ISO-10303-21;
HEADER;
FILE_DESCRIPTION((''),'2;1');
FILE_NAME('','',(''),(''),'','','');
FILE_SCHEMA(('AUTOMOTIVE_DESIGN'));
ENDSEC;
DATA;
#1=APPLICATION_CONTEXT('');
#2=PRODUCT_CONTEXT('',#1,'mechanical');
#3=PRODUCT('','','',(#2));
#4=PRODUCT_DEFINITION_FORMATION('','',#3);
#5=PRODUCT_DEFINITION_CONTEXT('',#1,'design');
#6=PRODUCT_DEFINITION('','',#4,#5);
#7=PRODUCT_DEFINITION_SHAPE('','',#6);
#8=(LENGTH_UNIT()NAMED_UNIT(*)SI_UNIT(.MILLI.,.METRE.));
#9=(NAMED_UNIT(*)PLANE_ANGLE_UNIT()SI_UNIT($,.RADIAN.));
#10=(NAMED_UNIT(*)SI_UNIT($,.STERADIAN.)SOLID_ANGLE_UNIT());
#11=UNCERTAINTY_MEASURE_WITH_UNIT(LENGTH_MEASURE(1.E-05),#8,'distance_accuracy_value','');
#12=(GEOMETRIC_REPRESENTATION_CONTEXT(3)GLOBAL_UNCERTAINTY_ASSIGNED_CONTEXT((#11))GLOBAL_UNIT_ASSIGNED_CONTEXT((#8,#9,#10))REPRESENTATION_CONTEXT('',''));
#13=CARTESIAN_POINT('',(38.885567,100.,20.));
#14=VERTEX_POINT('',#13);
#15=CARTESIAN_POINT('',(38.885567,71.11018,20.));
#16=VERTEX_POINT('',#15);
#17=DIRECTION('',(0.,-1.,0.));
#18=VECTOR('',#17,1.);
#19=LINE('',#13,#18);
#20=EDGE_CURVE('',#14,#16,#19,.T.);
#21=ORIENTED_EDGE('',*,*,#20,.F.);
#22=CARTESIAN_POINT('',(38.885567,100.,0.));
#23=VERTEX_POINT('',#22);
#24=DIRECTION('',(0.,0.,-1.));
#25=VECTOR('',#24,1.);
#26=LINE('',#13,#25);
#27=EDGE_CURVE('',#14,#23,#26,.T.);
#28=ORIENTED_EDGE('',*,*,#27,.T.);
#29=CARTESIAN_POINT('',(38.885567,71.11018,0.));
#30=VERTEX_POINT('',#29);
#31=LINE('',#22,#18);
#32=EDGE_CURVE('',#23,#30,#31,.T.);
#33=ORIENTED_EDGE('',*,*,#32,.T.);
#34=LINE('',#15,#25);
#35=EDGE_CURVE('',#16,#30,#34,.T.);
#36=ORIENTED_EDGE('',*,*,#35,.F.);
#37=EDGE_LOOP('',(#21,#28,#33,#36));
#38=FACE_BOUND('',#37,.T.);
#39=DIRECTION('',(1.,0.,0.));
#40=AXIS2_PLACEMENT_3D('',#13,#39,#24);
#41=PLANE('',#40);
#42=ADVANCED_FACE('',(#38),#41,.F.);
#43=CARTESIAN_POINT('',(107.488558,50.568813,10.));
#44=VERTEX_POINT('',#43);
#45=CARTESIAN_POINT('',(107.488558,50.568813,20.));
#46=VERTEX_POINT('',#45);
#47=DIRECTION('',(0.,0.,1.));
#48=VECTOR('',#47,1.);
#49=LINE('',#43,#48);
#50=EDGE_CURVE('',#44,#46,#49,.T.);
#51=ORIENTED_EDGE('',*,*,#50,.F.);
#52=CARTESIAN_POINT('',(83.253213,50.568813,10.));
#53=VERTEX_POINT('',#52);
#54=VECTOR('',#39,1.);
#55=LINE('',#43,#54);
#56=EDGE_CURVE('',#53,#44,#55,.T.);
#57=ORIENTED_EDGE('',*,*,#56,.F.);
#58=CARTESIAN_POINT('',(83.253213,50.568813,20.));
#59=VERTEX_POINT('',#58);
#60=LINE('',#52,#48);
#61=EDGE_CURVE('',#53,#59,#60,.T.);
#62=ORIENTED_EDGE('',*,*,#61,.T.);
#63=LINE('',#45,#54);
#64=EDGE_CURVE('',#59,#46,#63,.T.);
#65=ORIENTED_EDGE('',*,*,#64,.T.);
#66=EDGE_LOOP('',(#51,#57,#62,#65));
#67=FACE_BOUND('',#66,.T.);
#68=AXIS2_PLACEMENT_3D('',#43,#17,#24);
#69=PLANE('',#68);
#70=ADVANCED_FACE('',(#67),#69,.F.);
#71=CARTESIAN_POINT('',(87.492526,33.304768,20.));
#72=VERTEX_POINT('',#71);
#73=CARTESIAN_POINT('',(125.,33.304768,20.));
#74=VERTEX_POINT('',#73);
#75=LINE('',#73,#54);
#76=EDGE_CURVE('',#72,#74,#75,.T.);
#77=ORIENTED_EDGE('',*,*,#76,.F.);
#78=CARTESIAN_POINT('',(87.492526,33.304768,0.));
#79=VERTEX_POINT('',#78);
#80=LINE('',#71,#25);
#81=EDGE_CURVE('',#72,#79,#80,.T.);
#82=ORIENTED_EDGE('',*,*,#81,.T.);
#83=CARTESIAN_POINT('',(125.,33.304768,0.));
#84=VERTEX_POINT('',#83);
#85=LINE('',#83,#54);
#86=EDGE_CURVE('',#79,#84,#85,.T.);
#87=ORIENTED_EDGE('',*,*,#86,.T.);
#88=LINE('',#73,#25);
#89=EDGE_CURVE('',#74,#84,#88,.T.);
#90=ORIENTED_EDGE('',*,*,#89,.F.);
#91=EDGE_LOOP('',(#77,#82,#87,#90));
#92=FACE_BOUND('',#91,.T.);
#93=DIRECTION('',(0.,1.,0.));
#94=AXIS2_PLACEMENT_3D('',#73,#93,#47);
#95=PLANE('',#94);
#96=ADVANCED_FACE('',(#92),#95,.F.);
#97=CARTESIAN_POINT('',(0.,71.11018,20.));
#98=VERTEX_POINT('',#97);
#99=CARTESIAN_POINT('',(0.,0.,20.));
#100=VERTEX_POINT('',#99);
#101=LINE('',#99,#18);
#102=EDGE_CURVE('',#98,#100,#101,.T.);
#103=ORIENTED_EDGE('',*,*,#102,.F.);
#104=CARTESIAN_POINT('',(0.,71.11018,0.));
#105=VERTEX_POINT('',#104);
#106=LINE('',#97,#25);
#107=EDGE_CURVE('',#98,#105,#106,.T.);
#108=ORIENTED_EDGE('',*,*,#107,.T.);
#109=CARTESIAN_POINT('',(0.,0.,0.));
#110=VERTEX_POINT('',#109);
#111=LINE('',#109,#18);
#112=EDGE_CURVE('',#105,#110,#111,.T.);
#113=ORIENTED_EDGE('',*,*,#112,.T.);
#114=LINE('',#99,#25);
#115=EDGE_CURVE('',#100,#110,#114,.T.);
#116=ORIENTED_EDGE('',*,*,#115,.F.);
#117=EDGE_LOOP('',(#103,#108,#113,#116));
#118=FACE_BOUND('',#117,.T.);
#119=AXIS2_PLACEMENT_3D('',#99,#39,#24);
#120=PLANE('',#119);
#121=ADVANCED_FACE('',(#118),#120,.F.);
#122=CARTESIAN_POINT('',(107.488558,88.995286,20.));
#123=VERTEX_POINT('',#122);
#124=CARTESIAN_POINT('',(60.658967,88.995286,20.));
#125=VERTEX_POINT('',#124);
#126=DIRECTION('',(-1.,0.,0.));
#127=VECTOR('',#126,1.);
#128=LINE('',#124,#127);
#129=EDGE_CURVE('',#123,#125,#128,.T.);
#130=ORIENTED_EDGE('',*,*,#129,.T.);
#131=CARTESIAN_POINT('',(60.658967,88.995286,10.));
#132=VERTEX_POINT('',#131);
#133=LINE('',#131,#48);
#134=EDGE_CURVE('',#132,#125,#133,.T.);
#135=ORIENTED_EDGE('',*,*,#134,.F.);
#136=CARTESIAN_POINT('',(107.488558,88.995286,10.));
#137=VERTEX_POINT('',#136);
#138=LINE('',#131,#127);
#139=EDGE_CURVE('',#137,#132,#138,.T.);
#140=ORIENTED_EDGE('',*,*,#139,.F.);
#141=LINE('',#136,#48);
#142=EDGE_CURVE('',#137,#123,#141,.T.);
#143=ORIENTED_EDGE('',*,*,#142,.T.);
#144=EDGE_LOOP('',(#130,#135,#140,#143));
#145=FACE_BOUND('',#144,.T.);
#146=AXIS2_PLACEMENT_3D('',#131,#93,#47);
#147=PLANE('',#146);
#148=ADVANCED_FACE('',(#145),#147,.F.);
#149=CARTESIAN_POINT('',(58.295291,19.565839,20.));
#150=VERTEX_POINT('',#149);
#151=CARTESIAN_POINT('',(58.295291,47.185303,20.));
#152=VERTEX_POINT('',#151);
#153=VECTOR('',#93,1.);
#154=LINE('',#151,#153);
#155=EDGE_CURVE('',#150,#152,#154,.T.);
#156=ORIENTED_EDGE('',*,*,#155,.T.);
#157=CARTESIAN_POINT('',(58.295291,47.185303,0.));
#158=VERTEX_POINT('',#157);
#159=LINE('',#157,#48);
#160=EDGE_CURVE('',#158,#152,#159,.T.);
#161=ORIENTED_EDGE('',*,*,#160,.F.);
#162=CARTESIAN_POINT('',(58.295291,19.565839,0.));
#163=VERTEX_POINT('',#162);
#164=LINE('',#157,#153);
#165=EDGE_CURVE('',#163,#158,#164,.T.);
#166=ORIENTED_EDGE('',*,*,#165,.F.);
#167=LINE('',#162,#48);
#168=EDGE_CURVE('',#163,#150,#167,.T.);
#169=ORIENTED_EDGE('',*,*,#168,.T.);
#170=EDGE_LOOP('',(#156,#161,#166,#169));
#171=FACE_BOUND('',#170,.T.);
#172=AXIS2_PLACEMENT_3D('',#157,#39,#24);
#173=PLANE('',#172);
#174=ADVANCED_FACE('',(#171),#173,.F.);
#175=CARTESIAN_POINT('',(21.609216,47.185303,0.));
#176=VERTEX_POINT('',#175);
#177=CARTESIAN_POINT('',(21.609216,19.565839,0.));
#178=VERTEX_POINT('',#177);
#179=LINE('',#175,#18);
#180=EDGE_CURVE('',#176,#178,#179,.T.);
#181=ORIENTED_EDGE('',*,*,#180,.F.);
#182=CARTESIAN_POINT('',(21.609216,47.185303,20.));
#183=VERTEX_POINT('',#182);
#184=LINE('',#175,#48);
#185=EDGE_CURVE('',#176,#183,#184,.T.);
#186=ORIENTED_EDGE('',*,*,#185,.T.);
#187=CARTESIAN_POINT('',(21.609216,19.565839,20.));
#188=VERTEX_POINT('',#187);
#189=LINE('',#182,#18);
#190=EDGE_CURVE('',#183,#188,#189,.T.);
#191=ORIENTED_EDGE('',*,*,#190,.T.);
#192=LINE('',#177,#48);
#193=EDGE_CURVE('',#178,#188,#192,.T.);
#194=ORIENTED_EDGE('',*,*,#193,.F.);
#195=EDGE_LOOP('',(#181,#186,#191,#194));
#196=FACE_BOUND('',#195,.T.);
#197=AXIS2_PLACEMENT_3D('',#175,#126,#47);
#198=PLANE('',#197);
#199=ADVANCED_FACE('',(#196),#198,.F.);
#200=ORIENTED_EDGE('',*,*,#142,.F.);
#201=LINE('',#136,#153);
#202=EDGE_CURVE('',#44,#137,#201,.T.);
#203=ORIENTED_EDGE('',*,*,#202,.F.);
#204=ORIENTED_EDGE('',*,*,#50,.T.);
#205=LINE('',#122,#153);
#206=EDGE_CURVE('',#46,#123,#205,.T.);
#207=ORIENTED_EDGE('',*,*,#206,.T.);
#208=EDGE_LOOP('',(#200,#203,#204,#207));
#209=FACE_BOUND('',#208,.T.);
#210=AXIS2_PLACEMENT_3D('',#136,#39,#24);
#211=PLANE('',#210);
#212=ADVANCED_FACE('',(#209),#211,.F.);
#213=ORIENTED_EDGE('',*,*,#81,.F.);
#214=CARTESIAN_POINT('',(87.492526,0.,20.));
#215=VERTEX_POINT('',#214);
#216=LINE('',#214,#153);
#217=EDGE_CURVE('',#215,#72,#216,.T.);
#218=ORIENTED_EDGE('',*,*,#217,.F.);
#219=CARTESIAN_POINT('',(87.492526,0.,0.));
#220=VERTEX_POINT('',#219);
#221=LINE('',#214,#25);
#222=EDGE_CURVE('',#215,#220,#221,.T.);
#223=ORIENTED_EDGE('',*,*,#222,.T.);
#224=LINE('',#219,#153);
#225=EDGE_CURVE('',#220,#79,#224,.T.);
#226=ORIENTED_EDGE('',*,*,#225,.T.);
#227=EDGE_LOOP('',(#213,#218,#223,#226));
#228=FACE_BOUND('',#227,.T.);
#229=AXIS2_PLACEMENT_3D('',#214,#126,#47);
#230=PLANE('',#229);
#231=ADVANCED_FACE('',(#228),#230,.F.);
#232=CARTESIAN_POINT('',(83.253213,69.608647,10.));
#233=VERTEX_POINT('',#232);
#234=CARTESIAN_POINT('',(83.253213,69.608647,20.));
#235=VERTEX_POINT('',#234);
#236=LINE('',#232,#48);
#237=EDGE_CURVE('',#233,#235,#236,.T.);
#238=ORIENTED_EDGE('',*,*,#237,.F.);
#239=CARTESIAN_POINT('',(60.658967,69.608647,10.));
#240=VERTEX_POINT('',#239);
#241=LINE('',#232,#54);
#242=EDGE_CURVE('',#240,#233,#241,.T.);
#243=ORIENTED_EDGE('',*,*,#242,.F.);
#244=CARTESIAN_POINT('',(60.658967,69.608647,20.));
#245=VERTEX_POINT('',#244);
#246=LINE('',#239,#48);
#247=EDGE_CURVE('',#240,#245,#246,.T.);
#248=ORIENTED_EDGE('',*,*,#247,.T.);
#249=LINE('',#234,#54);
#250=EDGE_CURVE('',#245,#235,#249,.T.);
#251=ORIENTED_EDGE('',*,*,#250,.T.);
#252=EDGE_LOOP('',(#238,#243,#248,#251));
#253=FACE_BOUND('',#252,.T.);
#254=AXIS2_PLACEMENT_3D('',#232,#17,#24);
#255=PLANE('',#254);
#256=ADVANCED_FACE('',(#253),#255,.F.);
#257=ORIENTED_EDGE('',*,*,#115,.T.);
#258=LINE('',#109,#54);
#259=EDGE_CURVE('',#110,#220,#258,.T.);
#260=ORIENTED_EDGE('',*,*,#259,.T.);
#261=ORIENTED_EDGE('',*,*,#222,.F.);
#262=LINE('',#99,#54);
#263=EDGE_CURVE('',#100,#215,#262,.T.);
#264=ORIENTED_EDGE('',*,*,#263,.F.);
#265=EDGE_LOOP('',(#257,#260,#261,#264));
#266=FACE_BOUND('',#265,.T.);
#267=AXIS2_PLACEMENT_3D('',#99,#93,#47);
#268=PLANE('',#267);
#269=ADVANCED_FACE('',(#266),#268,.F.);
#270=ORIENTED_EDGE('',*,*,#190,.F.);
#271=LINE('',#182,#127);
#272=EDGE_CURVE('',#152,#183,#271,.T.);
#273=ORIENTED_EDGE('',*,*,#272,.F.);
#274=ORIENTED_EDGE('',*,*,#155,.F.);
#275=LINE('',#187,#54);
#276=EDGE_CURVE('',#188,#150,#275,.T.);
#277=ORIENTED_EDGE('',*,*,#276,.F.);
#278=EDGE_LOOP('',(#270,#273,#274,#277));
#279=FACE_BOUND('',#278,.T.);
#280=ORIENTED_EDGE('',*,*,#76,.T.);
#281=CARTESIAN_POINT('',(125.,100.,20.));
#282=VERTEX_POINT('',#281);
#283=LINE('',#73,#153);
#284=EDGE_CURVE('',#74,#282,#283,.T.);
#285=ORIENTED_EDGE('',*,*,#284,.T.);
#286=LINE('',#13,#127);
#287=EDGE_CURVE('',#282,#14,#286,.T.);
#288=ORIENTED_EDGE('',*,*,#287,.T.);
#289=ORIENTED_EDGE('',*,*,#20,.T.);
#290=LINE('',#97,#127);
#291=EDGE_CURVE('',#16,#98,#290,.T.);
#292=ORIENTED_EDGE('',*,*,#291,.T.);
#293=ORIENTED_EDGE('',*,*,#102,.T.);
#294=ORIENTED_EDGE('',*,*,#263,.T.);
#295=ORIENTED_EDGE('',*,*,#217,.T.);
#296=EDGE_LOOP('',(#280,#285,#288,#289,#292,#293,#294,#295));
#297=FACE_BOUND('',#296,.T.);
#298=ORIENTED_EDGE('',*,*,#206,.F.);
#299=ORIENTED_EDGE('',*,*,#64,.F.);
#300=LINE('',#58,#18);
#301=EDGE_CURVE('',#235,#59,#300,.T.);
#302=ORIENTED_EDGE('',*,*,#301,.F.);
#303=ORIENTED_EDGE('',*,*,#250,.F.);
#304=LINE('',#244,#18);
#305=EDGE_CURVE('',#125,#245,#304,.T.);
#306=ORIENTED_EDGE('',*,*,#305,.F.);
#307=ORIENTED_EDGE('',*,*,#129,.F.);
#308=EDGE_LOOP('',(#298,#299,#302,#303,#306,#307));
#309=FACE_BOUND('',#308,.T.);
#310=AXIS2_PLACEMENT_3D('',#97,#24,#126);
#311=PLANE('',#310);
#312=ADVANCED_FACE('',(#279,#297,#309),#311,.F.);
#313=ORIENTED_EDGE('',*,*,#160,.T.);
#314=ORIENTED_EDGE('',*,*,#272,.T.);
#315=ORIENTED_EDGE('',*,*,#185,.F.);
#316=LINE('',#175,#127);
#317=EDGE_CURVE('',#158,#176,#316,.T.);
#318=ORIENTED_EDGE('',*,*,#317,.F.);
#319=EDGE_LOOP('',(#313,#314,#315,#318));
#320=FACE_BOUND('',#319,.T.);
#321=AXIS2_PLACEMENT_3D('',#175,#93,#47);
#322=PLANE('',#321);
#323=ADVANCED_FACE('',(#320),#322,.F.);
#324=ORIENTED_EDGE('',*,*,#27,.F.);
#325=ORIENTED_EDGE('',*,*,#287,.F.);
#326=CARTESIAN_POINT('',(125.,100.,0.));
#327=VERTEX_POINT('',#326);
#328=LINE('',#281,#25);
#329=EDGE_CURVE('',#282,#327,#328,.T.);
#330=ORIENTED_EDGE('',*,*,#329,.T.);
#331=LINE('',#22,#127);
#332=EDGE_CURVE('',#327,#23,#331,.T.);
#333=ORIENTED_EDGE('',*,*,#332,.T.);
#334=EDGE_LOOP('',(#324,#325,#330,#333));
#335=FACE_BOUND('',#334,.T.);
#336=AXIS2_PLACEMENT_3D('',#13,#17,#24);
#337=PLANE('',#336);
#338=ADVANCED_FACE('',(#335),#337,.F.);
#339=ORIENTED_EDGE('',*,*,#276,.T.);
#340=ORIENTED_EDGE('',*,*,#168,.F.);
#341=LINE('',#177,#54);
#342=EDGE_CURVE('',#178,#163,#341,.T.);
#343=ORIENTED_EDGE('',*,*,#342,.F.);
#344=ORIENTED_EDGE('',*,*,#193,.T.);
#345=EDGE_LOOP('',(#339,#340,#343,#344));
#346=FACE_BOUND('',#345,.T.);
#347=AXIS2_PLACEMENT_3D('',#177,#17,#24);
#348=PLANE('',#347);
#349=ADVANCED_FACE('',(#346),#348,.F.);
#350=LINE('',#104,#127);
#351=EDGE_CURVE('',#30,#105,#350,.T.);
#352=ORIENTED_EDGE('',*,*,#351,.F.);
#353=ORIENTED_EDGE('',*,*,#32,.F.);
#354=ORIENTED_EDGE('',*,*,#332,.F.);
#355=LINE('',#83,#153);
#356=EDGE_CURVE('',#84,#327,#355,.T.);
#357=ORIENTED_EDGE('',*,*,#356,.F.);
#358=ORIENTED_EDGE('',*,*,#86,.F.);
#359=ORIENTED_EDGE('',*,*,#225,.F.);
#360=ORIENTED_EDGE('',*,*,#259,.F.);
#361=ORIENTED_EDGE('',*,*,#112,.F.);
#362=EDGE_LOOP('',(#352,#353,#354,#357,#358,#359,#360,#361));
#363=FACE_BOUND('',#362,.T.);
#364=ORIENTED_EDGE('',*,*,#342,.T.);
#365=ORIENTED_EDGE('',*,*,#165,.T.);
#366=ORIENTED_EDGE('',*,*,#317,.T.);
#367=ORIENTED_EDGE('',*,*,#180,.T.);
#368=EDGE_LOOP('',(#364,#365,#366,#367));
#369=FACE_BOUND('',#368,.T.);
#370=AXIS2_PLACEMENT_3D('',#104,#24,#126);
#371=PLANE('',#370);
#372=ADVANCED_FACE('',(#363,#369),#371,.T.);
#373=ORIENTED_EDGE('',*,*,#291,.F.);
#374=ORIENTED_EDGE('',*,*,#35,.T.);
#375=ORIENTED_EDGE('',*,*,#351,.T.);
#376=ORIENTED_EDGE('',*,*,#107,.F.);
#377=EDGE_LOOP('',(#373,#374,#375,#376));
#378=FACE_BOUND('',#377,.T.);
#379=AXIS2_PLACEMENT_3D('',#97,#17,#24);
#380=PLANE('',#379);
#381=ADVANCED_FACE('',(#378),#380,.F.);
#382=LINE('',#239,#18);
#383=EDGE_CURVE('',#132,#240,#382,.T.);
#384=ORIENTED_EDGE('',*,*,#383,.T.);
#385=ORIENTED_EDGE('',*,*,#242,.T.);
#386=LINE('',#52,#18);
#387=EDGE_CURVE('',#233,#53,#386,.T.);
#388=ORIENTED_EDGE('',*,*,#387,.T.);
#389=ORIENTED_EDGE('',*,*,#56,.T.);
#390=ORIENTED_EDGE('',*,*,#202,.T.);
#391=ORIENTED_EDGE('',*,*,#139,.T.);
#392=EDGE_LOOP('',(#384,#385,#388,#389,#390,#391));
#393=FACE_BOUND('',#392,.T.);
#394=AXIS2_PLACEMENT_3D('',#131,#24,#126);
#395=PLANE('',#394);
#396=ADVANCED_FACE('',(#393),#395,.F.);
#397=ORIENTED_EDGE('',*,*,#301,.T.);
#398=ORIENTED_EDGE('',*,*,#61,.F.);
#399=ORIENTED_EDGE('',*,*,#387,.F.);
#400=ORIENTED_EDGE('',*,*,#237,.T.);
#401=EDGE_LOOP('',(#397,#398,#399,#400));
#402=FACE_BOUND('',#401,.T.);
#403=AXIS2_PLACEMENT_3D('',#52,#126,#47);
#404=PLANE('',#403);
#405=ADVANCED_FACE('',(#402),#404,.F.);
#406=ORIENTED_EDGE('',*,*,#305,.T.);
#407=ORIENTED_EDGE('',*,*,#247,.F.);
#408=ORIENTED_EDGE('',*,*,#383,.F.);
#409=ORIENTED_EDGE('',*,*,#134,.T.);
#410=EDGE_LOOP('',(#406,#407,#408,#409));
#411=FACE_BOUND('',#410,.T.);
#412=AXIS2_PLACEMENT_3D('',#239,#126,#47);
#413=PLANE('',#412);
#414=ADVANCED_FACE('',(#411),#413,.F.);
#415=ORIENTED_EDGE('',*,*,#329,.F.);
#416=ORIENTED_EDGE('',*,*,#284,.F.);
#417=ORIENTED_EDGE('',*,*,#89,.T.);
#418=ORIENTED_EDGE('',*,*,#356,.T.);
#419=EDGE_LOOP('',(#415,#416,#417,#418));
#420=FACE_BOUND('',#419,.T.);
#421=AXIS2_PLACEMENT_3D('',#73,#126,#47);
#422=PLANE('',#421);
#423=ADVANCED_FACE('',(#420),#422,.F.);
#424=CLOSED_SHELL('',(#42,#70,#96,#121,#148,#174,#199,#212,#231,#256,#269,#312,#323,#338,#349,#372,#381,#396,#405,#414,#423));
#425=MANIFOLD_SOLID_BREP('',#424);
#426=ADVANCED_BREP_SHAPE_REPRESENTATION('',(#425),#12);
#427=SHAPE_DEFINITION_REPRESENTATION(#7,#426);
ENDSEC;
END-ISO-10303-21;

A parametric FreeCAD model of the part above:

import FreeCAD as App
import Part
import Sketcher
from FreeCAD import Vector

doc = App.newDocument("Part")
body = doc.addObject("PartDesign::Body", "Body")

# Sketch on XY plane
sketch1 = doc.addObject("Sketcher::SketchObject", "Sketch")
body.addObject(sketch1)
sketch1.AttachmentSupport = (doc.XY_Plane, [""])
sketch1.MapMode = "FlatFace"
sketch1.addGeometry([
    Part.LineSegment(Vector(0, 0, 0), Vector(87, 0, 0)),  # 0
    Part.LineSegment(Vector(87, 0, 0), Vector(87, 33, 0)),  # 1
    Part.LineSegment(Vector(87, 33, 0), Vector(125, 33, 0)),  # 2
    Part.LineSegment(Vector(125, 33, 0), Vector(125, 100, 0)),  # 3
    Part.LineSegment(Vector(125, 100, 0), Vector(39, 100, 0)),  # 4
    Part.LineSegment(Vector(39, 100, 0), Vector(39, 71, 0)),  # 5
    Part.LineSegment(Vector(39, 71, 0), Vector(0, 71, 0)),  # 6
    Part.LineSegment(Vector(0, 71, 0), Vector(0, 0, 0)),  # 7
], False)
sketch1.addConstraint([
    Sketcher.Constraint("Coincident", 0, 2, 1, 1),
    Sketcher.Constraint("Coincident", 1, 2, 2, 1),
    Sketcher.Constraint("Coincident", 2, 2, 3, 1),
    Sketcher.Constraint("Coincident", 3, 2, 4, 1),
    Sketcher.Constraint("Coincident", 4, 2, 5, 1),
    Sketcher.Constraint("Coincident", 5, 2, 6, 1),
    Sketcher.Constraint("Coincident", 6, 2, 7, 1),
    Sketcher.Constraint("Coincident", 7, 2, 0, 1),
    Sketcher.Constraint("Horizontal", 0),
    Sketcher.Constraint("Vertical", 1),
    Sketcher.Constraint("Horizontal", 2),
    Sketcher.Constraint("Vertical", 3),
    Sketcher.Constraint("Horizontal", 4),
    Sketcher.Constraint("Vertical", 5),
    Sketcher.Constraint("Horizontal", 6),
    Sketcher.Constraint("Vertical", 7),
    Sketcher.Constraint("Coincident", 7, 2, -1, 1),
    Sketcher.Constraint("DistanceX", -1, 1, 2, 2, 125.0),
    Sketcher.Constraint("DistanceY", -1, 1, 3, 2, 100.0),
    Sketcher.Constraint("DistanceY", 1, 1, 1, 2, 33.304768),
    Sketcher.Constraint("DistanceY", 5, 2, 5, 1, 28.88982),
    Sketcher.Constraint("DistanceX", 0, 1, 0, 2, 87.492526),
    Sketcher.Constraint("DistanceX", 4, 2, 4, 1, 86.114433),
])
pad1 = doc.addObject("PartDesign::Pad", "Pad")
body.addObject(pad1)
pad1.Profile = sketch1
pad1.Length = 20

# Sketch on XY plane
sketch2 = doc.addObject("Sketcher::SketchObject", "Sketch001")
body.addObject(sketch2)
sketch2.AttachmentSupport = (doc.XY_Plane, [""])
sketch2.MapMode = "FlatFace"
sketch2.AttachmentOffset = App.Placement(Vector(0, 0, 20), App.Rotation())
sketch2.addGeometry([
    Part.LineSegment(Vector(22, 47, 0), Vector(22, 20, 0)),
    Part.LineSegment(Vector(22, 20, 0), Vector(58, 20, 0)),
    Part.LineSegment(Vector(58, 20, 0), Vector(58, 47, 0)),
    Part.LineSegment(Vector(58, 47, 0), Vector(22, 47, 0)),
], False)
sketch2.addConstraint([
    Sketcher.Constraint("Coincident", 0, 2, 1, 1),
    Sketcher.Constraint("Coincident", 1, 2, 2, 1),
    Sketcher.Constraint("Coincident", 2, 2, 3, 1),
    Sketcher.Constraint("Coincident", 3, 2, 0, 1),
    Sketcher.Constraint("Vertical", 0),
    Sketcher.Constraint("Horizontal", 1),
    Sketcher.Constraint("Vertical", 2),
    Sketcher.Constraint("Horizontal", 3),
    Sketcher.Constraint("DistanceX", 1, 1, 1, 2, 36.686075),
    Sketcher.Constraint("DistanceY", 0, 2, 0, 1, 27.619463),
    Sketcher.Constraint("DistanceY", -1, 1, 0, 2, 19.565839),
    Sketcher.Constraint("DistanceX", -1, 1, 1, 2, 58.295291),
])
pocket1 = doc.addObject("PartDesign::Pocket", "Pocket")
body.addObject(pocket1)
pocket1.Profile = sketch2
pocket1.Length = 20

# Sketch on XY plane
sketch3 = doc.addObject("Sketcher::SketchObject", "Sketch002")
body.addObject(sketch3)
sketch3.AttachmentSupport = (doc.XY_Plane, [""])
sketch3.MapMode = "FlatFace"
sketch3.AttachmentOffset = App.Placement(Vector(0, 0, 20), App.Rotation())
sketch3.addGeometry([
    Part.LineSegment(Vector(107, 89, 0), Vector(61, 89, 0)),  # 0
    Part.LineSegment(Vector(61, 89, 0), Vector(61, 70, 0)),  # 1
    Part.LineSegment(Vector(61, 70, 0), Vector(83, 70, 0)),  # 2
    Part.LineSegment(Vector(83, 70, 0), Vector(83, 51, 0)),  # 3
    Part.LineSegment(Vector(83, 51, 0), Vector(107, 51, 0)),  # 4
    Part.LineSegment(Vector(107, 51, 0), Vector(107, 89, 0)),  # 5
], False)
sketch3.addConstraint([
    Sketcher.Constraint("Coincident", 0, 2, 1, 1),
    Sketcher.Constraint("Coincident", 1, 2, 2, 1),
    Sketcher.Constraint("Coincident", 2, 2, 3, 1),
    Sketcher.Constraint("Coincident", 3, 2, 4, 1),
    Sketcher.Constraint("Coincident", 4, 2, 5, 1),
    Sketcher.Constraint("Coincident", 5, 2, 0, 1),
    Sketcher.Constraint("Horizontal", 0),
    Sketcher.Constraint("Vertical", 1),
    Sketcher.Constraint("Horizontal", 2),
    Sketcher.Constraint("Vertical", 3),
    Sketcher.Constraint("Horizontal", 4),
    Sketcher.Constraint("Vertical", 5),
    Sketcher.Constraint("DistanceX", 0, 2, 0, 1, 46.829591),
    Sketcher.Constraint("DistanceY", 1, 2, 1, 1, 19.386639),
    Sketcher.Constraint("DistanceX", 2, 1, 2, 2, 22.594247),
    Sketcher.Constraint("DistanceY", 3, 2, 3, 1, 19.039835),
    Sketcher.Constraint("DistanceX", -1, 1, 0, 2, 60.658967),
    Sketcher.Constraint("DistanceY", -1, 1, 0, 2, 88.995286),
])
pocket2 = doc.addObject("PartDesign::Pocket", "Pocket001")
body.addObject(pocket2)
pocket2.Profile = sketch3
pocket2.Length = 10

doc.recompute()
